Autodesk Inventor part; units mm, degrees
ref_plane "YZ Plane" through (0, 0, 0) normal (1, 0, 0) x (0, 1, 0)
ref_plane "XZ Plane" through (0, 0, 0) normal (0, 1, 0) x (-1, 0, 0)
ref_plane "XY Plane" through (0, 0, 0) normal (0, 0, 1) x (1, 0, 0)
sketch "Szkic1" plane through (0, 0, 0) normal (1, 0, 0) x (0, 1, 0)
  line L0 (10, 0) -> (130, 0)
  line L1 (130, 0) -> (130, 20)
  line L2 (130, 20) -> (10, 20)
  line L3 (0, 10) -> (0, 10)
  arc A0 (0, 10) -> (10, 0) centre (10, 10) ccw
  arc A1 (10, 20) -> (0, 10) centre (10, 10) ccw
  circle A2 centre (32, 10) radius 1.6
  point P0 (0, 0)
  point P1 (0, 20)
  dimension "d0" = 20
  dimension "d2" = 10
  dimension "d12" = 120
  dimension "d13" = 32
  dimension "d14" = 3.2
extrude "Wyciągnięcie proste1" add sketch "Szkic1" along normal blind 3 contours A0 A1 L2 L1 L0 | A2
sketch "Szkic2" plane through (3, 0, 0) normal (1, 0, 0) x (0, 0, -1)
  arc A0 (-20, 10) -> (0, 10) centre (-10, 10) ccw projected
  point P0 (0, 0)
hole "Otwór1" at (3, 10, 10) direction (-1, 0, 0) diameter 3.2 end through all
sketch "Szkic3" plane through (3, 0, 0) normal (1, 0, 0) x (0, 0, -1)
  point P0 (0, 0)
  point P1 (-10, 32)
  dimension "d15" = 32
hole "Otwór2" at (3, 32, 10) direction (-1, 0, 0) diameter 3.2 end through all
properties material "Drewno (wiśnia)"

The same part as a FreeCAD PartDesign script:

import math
import FreeCAD as App
import Part
import Sketcher
Q = App.Units.Quantity

doc = App.newDocument("Part")
body = doc.addObject("PartDesign::Body", "Body")

# Sketch on YZ plane
sketch1 = body.newObject("Sketcher::SketchObject", "Sketch")
sketch1.AttachmentSupport = (doc.getObject("YZ_Plane"), [""])
sketch1.MapMode = "FlatFace"
sketch1.addGeometry(Part.LineSegment(App.Vector(10, 0, 0), App.Vector(130, 0, 0)), False)
sketch1.addGeometry(Part.LineSegment(App.Vector(130, 0, 0), App.Vector(130, 20, 0)), False)
sketch1.addGeometry(Part.LineSegment(App.Vector(130, 20, 0), App.Vector(10, 20, 0)), False)
sketch1.addGeometry(Part.ArcOfCircle(Part.Circle(App.Vector(10, 10, 0), App.Vector(0, 0, 1), 10), math.radians(90), math.radians(270)), False)
sketch1.addConstraint(Sketcher.Constraint("Coincident", 0, 2, 1, 1))
sketch1.addConstraint(Sketcher.Constraint("Coincident", 1, 2, 2, 1))
sketch1.addConstraint(Sketcher.Constraint("Tangent", 2, 2, 3, 1))
sketch1.addConstraint(Sketcher.Constraint("Tangent", 3, 2, 0, 1))
sketch1.addConstraint(Sketcher.Constraint("Horizontal", 0))
sketch1.addConstraint(Sketcher.Constraint("Vertical", 1))
sketch1.addConstraint(Sketcher.Constraint("Horizontal", 2))
sketch1.addConstraint(Sketcher.Constraint("PointOnObject", 0, 2, -1))
sketch1.addConstraint(Sketcher.Constraint("Radius", 3, Q("10 mm")))
sketch1.addConstraint(Sketcher.Constraint("DistanceX", 0, 1, 0, 2, Q("120 mm")))
sketch1.addConstraint(Sketcher.Constraint("DistanceX", -1, 1, 3, 3, Q("10 mm")))
pad1 = body.newObject("PartDesign::Pad", "Pad")
pad1.Profile = sketch1
pad1.Length = 3

# Sketch on YZ plane
sketch2 = body.newObject("Sketcher::SketchObject", "Sketch001")
sketch2.AttachmentSupport = (doc.getObject("YZ_Plane"), [""])
sketch2.MapMode = "FlatFace"
sketch2.AttachmentOffset = App.Placement(App.Vector(0, 0, 3), App.Rotation())
sketch2.addGeometry(Part.Circle(App.Vector(10, 10, 0), App.Vector(0, 0, 1), 1.6), False)
sketch2.addConstraint(Sketcher.Constraint("Diameter", 0, Q("3.2 mm")))
sketch2.addConstraint(Sketcher.Constraint("DistanceX", -1, 1, 0, 3, Q("10 mm")))
sketch2.addConstraint(Sketcher.Constraint("DistanceY", -1, 1, 0, 3, Q("10 mm")))
doc.recompute()
hole = body.newObject("PartDesign::Hole", "Hole")
hole.Profile = sketch2
hole.ThreadType = "None"
hole.Diameter = 3.2
hole.DepthType = "ThroughAll"

# Sketch on YZ plane
sketch3 = body.newObject("Sketcher::SketchObject", "Sketch002")
sketch3.AttachmentSupport = (doc.getObject("YZ_Plane"), [""])
sketch3.MapMode = "FlatFace"
sketch3.AttachmentOffset = App.Placement(App.Vector(0, 0, 3), App.Rotation())
sketch3.addGeometry(Part.Circle(App.Vector(32, 10, 0), App.Vector(0, 0, 1), 1.6), False)
sketch3.addConstraint(Sketcher.Constraint("Diameter", 0, Q("3.2 mm")))
sketch3.addConstraint(Sketcher.Constraint("DistanceX", -1, 1, 0, 3, Q("32 mm")))
sketch3.addConstraint(Sketcher.Constraint("DistanceY", -1, 1, 0, 3, Q("10 mm")))
doc.recompute()
hole2 = body.newObject("PartDesign::Hole", "Hole001")
hole2.Profile = sketch3
hole2.ThreadType = "None"
hole2.Diameter = 3.2
hole2.DepthType = "ThroughAll"

doc.recompute()
